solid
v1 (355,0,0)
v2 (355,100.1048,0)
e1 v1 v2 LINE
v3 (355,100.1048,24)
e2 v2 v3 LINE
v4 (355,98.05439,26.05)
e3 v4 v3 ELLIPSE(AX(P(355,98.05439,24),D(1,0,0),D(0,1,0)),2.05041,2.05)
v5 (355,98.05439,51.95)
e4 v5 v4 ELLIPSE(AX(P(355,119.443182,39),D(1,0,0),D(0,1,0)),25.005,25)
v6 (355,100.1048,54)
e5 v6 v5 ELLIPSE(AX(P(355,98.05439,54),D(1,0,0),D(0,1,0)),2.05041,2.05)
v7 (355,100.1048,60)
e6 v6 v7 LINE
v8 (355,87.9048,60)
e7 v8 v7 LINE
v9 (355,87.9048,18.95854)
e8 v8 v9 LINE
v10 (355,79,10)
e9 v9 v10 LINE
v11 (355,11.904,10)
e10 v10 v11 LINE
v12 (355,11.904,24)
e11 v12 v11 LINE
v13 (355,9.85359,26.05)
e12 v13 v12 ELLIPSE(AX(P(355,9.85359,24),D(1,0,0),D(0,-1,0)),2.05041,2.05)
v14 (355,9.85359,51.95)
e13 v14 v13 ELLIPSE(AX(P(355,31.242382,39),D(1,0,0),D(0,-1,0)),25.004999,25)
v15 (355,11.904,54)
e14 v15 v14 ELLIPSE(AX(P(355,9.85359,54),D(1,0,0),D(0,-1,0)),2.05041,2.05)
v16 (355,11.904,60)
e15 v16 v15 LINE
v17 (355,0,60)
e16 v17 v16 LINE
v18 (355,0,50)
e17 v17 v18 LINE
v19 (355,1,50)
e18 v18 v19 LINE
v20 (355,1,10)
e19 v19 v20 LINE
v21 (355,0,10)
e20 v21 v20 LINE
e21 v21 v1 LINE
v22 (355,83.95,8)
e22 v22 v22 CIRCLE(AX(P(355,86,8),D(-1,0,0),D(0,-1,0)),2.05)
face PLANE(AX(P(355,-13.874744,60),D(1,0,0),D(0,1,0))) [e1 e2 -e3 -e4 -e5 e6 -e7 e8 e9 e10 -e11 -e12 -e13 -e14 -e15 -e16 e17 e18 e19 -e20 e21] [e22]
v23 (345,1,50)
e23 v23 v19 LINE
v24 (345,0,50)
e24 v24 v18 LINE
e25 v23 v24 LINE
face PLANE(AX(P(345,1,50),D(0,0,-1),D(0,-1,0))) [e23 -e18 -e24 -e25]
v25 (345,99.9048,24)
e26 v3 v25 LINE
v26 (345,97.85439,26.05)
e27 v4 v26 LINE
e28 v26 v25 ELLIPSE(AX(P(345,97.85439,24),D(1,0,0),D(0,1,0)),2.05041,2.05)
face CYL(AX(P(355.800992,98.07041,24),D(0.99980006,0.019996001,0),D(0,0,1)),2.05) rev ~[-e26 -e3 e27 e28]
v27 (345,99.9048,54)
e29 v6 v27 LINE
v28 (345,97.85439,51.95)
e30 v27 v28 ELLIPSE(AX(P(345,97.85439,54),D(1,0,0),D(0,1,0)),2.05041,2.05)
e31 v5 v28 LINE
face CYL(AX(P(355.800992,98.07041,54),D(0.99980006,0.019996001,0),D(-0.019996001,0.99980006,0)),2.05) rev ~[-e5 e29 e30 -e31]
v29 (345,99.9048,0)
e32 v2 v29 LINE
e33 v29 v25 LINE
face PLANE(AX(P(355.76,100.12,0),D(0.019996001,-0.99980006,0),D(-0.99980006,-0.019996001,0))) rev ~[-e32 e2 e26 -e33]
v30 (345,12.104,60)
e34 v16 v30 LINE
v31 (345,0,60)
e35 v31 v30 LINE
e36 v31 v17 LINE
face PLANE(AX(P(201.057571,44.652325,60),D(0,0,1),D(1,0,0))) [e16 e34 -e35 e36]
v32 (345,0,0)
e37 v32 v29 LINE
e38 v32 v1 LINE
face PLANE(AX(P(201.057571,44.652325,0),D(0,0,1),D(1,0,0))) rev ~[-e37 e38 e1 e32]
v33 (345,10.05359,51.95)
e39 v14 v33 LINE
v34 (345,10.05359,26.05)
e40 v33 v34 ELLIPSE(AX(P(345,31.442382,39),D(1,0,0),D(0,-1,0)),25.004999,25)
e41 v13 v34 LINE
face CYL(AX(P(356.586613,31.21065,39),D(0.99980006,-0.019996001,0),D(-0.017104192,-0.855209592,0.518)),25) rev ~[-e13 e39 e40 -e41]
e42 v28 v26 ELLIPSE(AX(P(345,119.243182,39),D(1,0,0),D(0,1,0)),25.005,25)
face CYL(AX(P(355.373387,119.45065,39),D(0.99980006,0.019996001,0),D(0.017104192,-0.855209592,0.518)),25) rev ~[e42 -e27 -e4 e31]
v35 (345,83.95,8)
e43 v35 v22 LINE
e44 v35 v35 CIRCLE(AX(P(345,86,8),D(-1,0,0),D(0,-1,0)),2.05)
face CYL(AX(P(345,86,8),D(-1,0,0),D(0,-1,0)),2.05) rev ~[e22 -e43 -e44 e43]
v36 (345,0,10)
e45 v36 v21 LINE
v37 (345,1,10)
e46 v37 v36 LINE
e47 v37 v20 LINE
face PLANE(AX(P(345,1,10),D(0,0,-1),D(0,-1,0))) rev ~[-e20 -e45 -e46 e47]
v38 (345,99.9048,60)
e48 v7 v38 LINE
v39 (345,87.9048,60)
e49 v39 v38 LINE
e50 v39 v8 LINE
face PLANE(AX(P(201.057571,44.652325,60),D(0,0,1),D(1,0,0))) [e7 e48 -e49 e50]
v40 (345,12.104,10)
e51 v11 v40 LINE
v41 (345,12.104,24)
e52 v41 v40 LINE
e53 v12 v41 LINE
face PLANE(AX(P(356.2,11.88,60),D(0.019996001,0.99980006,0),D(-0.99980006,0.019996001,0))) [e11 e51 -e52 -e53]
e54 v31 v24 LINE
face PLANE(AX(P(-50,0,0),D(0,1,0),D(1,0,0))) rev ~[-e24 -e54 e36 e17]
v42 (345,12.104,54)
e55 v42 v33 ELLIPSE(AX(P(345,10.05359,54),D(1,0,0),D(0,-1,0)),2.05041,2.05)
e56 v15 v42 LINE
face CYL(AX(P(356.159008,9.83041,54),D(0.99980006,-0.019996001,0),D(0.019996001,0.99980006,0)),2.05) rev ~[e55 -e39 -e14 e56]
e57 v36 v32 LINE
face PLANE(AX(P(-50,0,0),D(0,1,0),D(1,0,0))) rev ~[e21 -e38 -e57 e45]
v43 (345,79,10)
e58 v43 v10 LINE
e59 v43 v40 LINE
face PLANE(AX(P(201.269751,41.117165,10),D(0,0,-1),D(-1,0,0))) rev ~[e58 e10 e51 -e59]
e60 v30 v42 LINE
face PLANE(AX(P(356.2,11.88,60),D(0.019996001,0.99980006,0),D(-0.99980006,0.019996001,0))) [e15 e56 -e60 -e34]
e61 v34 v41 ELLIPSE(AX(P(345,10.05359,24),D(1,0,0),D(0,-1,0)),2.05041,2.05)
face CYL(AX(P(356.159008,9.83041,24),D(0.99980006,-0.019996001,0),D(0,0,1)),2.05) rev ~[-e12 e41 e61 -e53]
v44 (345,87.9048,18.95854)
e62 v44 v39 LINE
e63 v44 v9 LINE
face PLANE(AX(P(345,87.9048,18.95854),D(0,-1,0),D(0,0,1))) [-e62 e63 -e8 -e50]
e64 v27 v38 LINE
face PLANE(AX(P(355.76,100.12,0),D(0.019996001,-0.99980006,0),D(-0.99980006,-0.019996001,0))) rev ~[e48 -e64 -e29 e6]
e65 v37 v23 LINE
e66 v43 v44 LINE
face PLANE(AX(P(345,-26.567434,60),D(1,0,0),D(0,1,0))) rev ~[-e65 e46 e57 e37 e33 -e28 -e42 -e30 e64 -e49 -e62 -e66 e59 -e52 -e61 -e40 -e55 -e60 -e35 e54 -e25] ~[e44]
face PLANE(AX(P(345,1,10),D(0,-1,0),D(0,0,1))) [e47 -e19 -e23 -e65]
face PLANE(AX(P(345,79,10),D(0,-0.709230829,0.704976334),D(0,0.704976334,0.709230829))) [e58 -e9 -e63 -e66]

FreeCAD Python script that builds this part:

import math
import FreeCAD as App
import Part
import Sketcher
from FreeCAD import Vector
Q = App.Units.Quantity


def add_polygon(sketch, points):
    """Adds a closed chain of lines whose ends are joined by coincident constraints."""
    first, n = sketch.GeometryCount, len(points)
    for a, b in zip(points, points[1:] + points[:1]):
        sketch.addGeometry(Part.LineSegment(App.Vector(*a, 0), App.Vector(*b, 0)), False)
    for i in range(n):
        sketch.addConstraint(Sketcher.Constraint("Coincident", first + i, 2, first + (i + 1) % n, 1))

doc = App.newDocument("Part")
body = doc.addObject("PartDesign::Body", "Body")

sketch1 = doc.addObject("Sketcher::SketchObject", "Sketch")
body.addObject(sketch1)
sketch1.AttachmentSupport = (doc.XY_Plane, [""])
sketch1.MapMode = "FlatFace"
add_polygon(sketch1, [(450, 0), (450, 90), (356, 88), (356, 100), (344, 100), (344, 88), (6, 81), (6, 93), (-6, 93), (-6, 81), (-50, 80), (-50, 0)])
sketch1.addConstraint([
    Sketcher.Constraint("Vertical", 0),
    Sketcher.Constraint("Vertical", 10),
    Sketcher.Constraint("Horizontal", 11),
    Sketcher.Constraint("PointOnObject", 10, 2, -1),
    Sketcher.Constraint("Perpendicular", 1, 2),
    Sketcher.Constraint("Perpendicular", 2, 3),
    Sketcher.Constraint("Perpendicular", 3, 4),
    Sketcher.Constraint("Perpendicular", 4, 5),
    Sketcher.Constraint("Perpendicular", 5, 6),
    Sketcher.Constraint("Perpendicular", 6, 7),
    Sketcher.Constraint("Perpendicular", 7, 8),
    Sketcher.Constraint("Perpendicular", 8, 9),
    Sketcher.Constraint("Equal", 2, 3),
    Sketcher.Constraint("Equal", 3, 4),
    Sketcher.Constraint("Equal", 4, 6),
    Sketcher.Constraint("Equal", 6, 7),
    Sketcher.Constraint("Equal", 7, 8),
    Sketcher.Constraint("DistanceX", 11, 1, 11, 2, Q("500 mm")),
    Sketcher.Constraint("DistanceY", 0, 1, 0, 2, Q("90 mm")),
    Sketcher.Constraint("DistanceY", 10, 2, 10, 1, Q("80 mm")),
    Sketcher.Constraint("DistanceX", -1, 1, 0, 2, Q("450 mm")),
    Sketcher.Constraint("DistanceX", -1, 1, 1, 2, Q("356 mm")),
    Sketcher.Constraint("DistanceX", -1, 1, 4, 2, Q("344 mm")),
    Sketcher.Constraint("DistanceX", -1, 1, 5, 2, Q("6 mm")),
])
pad1 = doc.addObject("PartDesign::Pad", "Pad")
body.addObject(pad1)
pad1.Profile = sketch1
pad1.Length = 60

sketch2 = doc.addObject("Sketcher::SketchObject", "Sketch001")
body.addObject(sketch2)
sketch2.AttachmentSupport = (doc.XY_Plane, [""])
sketch2.MapMode = "FlatFace"
sketch2.AttachmentOffset = App.Placement(Vector(0, 0, 60), App.Rotation())
add_polygon(sketch2, [(-50, 79), (-50, 10), (-6, 9), (-6, 19), (6, 19), (6, 9), (344, 2), (344, 12), (356, 12), (356, 2), (450, 0), (450, 79)])
sketch2.addConstraint([
    Sketcher.Constraint("Vertical", 0),
    Sketcher.Constraint("Vertical", 10),
    Sketcher.Constraint("Horizontal", 11),
    Sketcher.Constraint("PointOnObject", 9, 2, -1),
    Sketcher.Constraint("Perpendicular", 1, 2),
    Sketcher.Constraint("Perpendicular", 2, 3),
    Sketcher.Constraint("Perpendicular", 3, 4),
    Sketcher.Constraint("Perpendicular", 4, 5),
    Sketcher.Constraint("Perpendicular", 5, 6),
    Sketcher.Constraint("Perpendicular", 6, 7),
    Sketcher.Constraint("Perpendicular", 7, 8),
    Sketcher.Constraint("Perpendicular", 8, 9),
    Sketcher.Constraint("Equal", 2, 4),
    Sketcher.Constraint("Equal", 4, 6),
    Sketcher.Constraint("Equal", 3, 7),
    Sketcher.Constraint("Equal", 6, 8),
    Sketcher.Constraint("DistanceX", 11, 2, 11, 1, Q("500 mm")),
    Sketcher.Constraint("DistanceY", 0, 2, 0, 1, Q("69 mm")),
    Sketcher.Constraint("DistanceY", 10, 1, 10, 2, Q("79 mm")),
    Sketcher.Constraint("DistanceX", 0, 2, -1, 1, Q("50 mm")),
    Sketcher.Constraint("DistanceX", 1, 2, -1, 1, Q("6 mm")),
    Sketcher.Constraint("DistanceX", -1, 1, 4, 2, Q("6 mm")),
    Sketcher.Constraint("DistanceX", -1, 1, 5, 2, Q("344 mm")),
    Sketcher.Constraint("DistanceY", 1, 2, 2, 2, Q("10 mm")),
])
pocket1 = doc.addObject("PartDesign::Pocket", "Pocket")
body.addObject(pocket1)
pocket1.Profile = sketch2
pocket1.Length = 50

sketch3 = doc.addObject("Sketcher::SketchObject", "Sketch002")
body.addObject(sketch3)
sketch3.Placement = App.Placement(Vector(355.820072, -7.116401, 0), App.Rotation(Vector(0.019996001, 0.99980006, 0), Vector(0, 0, 1), Vector(0.99980006, -0.019996001, 0), "ZXY"))
sketch3.addGeometry([
    Part.ArcOfCircle(Part.Circle(Vector(17, 54, 0), Vector(0, 0, 1), 2), math.radians(0), math.radians(270)),
    Part.ArcOfCircle(Part.Circle(Vector(38.3, 39, 0), Vector(0, 0, 1), 25), math.radians(149), math.radians(211)),
    Part.ArcOfCircle(Part.Circle(Vector(17, 24, 0), Vector(0, 0, 1), 2), math.radians(90), math.radians(360)),
    Part.LineSegment(Vector(19, 24, 0), Vector(19, 54, 0)),
], False)
sketch3.addConstraint([
    Sketcher.Constraint("Coincident", 0, 2, 1, 1),
    Sketcher.Constraint("Coincident", 1, 2, 2, 1),
    Sketcher.Constraint("Tangent", 2, 2, 3, 1),
    Sketcher.Constraint("Tangent", 3, 2, 0, 1),
    Sketcher.Constraint("Vertical", 3),
    Sketcher.Constraint("Equal", 0, 2),
    Sketcher.Constraint("Vertical", 2, 3, 0, 2),
    Sketcher.Constraint("Vertical", 0, 2, 1, 2),
    Sketcher.Constraint("Radius", 1, Q("25 mm")),
    Sketcher.Constraint("DistanceY", 3, 1, 3, 2, Q("30 mm")),
    Sketcher.Constraint("Radius", 0, Q("2.05 mm")),
    Sketcher.Constraint("DistanceY", -1, 1, 0, 3, Q("54 mm")),
    Sketcher.Constraint("DistanceX", -1, 1, 0, 3, Q("16.9502 mm")),
])
pocket2 = doc.addObject("PartDesign::Pocket", "Pocket001")
body.addObject(pocket2)
pocket2.Profile = sketch3
pocket2.Type = "ThroughAll"

sketch4 = doc.addObject("Sketcher::SketchObject", "Sketch003")
body.addObject(sketch4)
sketch4.Placement = App.Placement(Vector(357.619352, 7.152387, 0), App.Rotation(Vector(-0.019996001, 0.99980006, 0), Vector(0, 0, 1), Vector(0.99980006, 0.019996001, 0), "ZXY"))
sketch4.addGeometry([
    Part.ArcOfCircle(Part.Circle(Vector(90.9, 54, 0), Vector(0, 0, 1), 2), math.radians(0), math.radians(270)),
    Part.ArcOfCircle(Part.Circle(Vector(112.3, 39, 0), Vector(0, 0, 1), 25), math.radians(149), math.radians(211)),
    Part.ArcOfCircle(Part.Circle(Vector(90.9, 24, 0), Vector(0, 0, 1), 2), math.radians(90), math.radians(360)),
    Part.LineSegment(Vector(93, 24, 0), Vector(93, 54, 0)),
], False)
sketch4.addConstraint([
    Sketcher.Constraint("Coincident", 0, 2, 1, 1),
    Sketcher.Constraint("Coincident", 1, 2, 2, 1),
    Sketcher.Constraint("Tangent", 2, 2, 3, 1),
    Sketcher.Constraint("Tangent", 3, 2, 0, 1),
    Sketcher.Constraint("Vertical", 3),
    Sketcher.Constraint("Equal", 0, 2),
    Sketcher.Constraint("Vertical", 2, 3, 0, 2),
    Sketcher.Constraint("Vertical", 0, 2, 1, 2),
    Sketcher.Constraint("Radius", 1, Q("25 mm")),
    Sketcher.Constraint("DistanceY", 3, 1, 3, 2, Q("30 mm")),
    Sketcher.Constraint("Radius", 0, Q("2.05 mm")),
    Sketcher.Constraint("DistanceY", -1, 1, 0, 3, Q("54 mm")),
    Sketcher.Constraint("DistanceX", -1, 1, 1, 3, Q("112.32072 mm")),
])
pocket3 = doc.addObject("PartDesign::Pocket", "Pocket002")
body.addObject(pocket3)
pocket3.Profile = sketch4
pocket3.Type = "ThroughAll"

sketch5 = doc.addObject("Sketcher::SketchObject", "Sketch004")
body.addObject(sketch5)
sketch5.AttachmentSupport = (doc.XY_Plane, [""])
sketch5.MapMode = "FlatFace"
sketch5.AttachmentOffset = App.Placement(Vector(0, 0, 60), App.Rotation())
add_polygon(sketch5, [(-118, 126), (-118, -27), (345, -27), (345, 126)])
add_polygon(sketch5, [(355, 128), (355, -14), (561, -14), (561, 128)])
sketch5.addConstraint([
    Sketcher.Constraint("Vertical", 0),
    Sketcher.Constraint("Horizontal", 1),
    Sketcher.Constraint("Vertical", 2),
    Sketcher.Constraint("Horizontal", 3),
    Sketcher.Constraint("Vertical", 4),
    Sketcher.Constraint("Horizontal", 5),
    Sketcher.Constraint("Vertical", 6),
    Sketcher.Constraint("Horizontal", 7),
    Sketcher.Constraint("DistanceX", -1, 1, 1, 2, Q("345 mm")),
    Sketcher.Constraint("DistanceX", -1, 1, 4, 2, Q("355 mm")),
    Sketcher.Constraint("DistanceX", 1, 1, 1, 2, Q("462.917107 mm")),
    Sketcher.Constraint("DistanceX", 5, 1, 5, 2, Q("206.430237 mm")),
    Sketcher.Constraint("DistanceY", 0, 2, 0, 1, Q("152.532247 mm")),
    Sketcher.Constraint("DistanceY", 4, 2, 4, 1, Q("142.147327 mm")),
    Sketcher.Constraint("DistanceY", 1, 2, 4, 2, Q("12.69269 mm")),
    Sketcher.Constraint("DistanceY", 0, 2, -1, 1, Q("26.567434 mm")),
])
pocket4 = doc.addObject("PartDesign::Pocket", "Pocket003")
body.addObject(pocket4)
pocket4.Profile = sketch5
pocket4.Type = "ThroughAll"

sketch6 = doc.addObject("Sketcher::SketchObject", "Sketch005")
body.addObject(sketch6)
sketch6.AttachmentSupport = (doc.YZ_Plane, [""])
sketch6.MapMode = "FlatFace"
sketch6.AttachmentOffset = App.Placement(Vector(0, 0, 345), App.Rotation())
sketch6.addGeometry(Part.Circle(Vector(86, 8, 0), Vector(0, 0, 1), 2), False)
add_polygon(sketch6, [(1, 50), (1, 10), (0, 10), (0, 50)])
add_polygon(sketch6, [(79, 60), (87.9, 60), (87.9, 19), (79, 10)])
sketch6.addConstraint([
    Sketcher.Constraint("Vertical", 1),
    Sketcher.Constraint("Horizontal", 2),
    Sketcher.Constraint("Vertical", 3),
    Sketcher.Constraint("Horizontal", 4),
    Sketcher.Constraint("Horizontal", 5),
    Sketcher.Constraint("Vertical", 6),
    Sketcher.Constraint("Vertical", 8),
    Sketcher.Constraint("PointOnObject", 2, 2, -2),
    Sketcher.Constraint("Horizontal", 2, 2, 7, 2),
    Sketcher.Constraint("Diameter", 0, Q("4.1 mm")),
    Sketcher.Constraint("DistanceX", 2, 2, 2, 1, Q("1 mm")),
    Sketcher.Constraint("DistanceY", 1, 2, 1, 1, Q("40 mm")),
    Sketcher.Constraint("DistanceY", 8, 1, 8, 2, Q("50 mm")),
    Sketcher.Constraint("DistanceX", -1, 1, 0, 3, Q("86 mm")),
    Sketcher.Constraint("DistanceY", -1, 1, 0, 3, Q("8 mm")),
    Sketcher.Constraint("DistanceY", -1, 1, 1, 2, Q("10 mm")),
    Sketcher.Constraint("DistanceX", -1, 1, 7, 2, Q("79 mm")),
    Sketcher.Constraint("DistanceX", 5, 1, 5, 2, Q("8.9048 mm")),
    Sketcher.Constraint("DistanceY", 6, 2, 6, 1, Q("41.04146 mm")),
])
pocket5 = doc.addObject("PartDesign::Pocket", "Pocket004")
body.addObject(pocket5)
pocket5.Profile = sketch6
pocket5.Type = "ThroughAll"
pocket5.Reversed = True

doc.recompute()
